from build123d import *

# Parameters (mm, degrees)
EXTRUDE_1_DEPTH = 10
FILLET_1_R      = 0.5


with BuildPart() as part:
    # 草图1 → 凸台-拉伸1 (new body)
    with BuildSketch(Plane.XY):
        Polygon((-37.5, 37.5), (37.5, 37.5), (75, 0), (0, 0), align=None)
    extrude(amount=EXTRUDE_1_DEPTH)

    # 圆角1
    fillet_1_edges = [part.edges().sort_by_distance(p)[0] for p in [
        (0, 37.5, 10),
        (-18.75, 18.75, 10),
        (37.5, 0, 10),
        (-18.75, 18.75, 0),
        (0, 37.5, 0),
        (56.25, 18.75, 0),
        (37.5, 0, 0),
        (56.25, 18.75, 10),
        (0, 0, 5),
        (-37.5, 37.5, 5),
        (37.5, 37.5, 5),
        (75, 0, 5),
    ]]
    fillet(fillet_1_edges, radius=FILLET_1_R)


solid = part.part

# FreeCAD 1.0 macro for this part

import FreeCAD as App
import Part
import Sketcher
from FreeCAD import Vector
Q = App.Units.Quantity


def add_polygon(sketch, points):
    """Adds a closed chain of lines whose ends are joined by coincident constraints."""
    first, n = sketch.GeometryCount, len(points)
    for a, b in zip(points, points[1:] + points[:1]):
        sketch.addGeometry(Part.LineSegment(App.Vector(*a, 0), App.Vector(*b, 0)), False)
    for i in range(n):
        sketch.addConstraint(Sketcher.Constraint("Coincident", first + i, 2, first + (i + 1) % n, 1))

doc = App.newDocument("Part")
params = doc.addObject("Spreadsheet::Sheet", "Params")
for row, (alias, value) in enumerate([
    ("sketch1_width", "75 mm"),
    ("pad1_length", "10 mm"),
    ("fillet_radius", "0.5 mm"),
], start=1):
    params.set(f"A{row}", alias)
    params.set(f"B{row}", "=" + value)
    params.setAlias(f"B{row}", alias)

body = doc.addObject("PartDesign::Body", "Body")

# Sketch on XY plane
sketch1 = body.newObject("Sketcher::SketchObject", "Sketch")
sketch1.AttachmentSupport = (doc.getObject("XY_Plane"), [""])
sketch1.MapMode = "FlatFace"
add_polygon(sketch1, [(38, 38), (-38, 38), (0, 0), (75, 0)])  # lines 0-3
sketch1.addConstraint(Sketcher.Constraint("Horizontal", 0))
sketch1.addConstraint(Sketcher.Constraint("Horizontal", 2))
sketch1.addConstraint(Sketcher.Constraint("Coincident", 1, 2, -1, 1))
sketch1.addConstraint(Sketcher.Constraint("Parallel", 1, 3))
sketch1.addConstraint(Sketcher.Constraint("DistanceX", 0, 2, 0, 1, Q("75 mm")))
sketch1.addConstraint(Sketcher.Constraint("Angle", 1, Q("-45 deg")))
sketch1.addConstraint(Sketcher.Constraint("DistanceX", 0, 2, -1, 1, Q("37.5 mm")))
sketch1.setExpression("Constraints[8]", "Params.sketch1_width")
pad1 = body.newObject("PartDesign::Pad", "Pad")
pad1.Profile = sketch1
pad1.setExpression("Length", "Params.pad1_length")
doc.recompute()

fillet = body.newObject("PartDesign::Fillet", "Fillet")
fillet.Base = (pad1, ["Edge1"])
fillet.UseAllEdges = True
fillet.setExpression("Radius", "Params.fillet_radius")

doc.recompute()
